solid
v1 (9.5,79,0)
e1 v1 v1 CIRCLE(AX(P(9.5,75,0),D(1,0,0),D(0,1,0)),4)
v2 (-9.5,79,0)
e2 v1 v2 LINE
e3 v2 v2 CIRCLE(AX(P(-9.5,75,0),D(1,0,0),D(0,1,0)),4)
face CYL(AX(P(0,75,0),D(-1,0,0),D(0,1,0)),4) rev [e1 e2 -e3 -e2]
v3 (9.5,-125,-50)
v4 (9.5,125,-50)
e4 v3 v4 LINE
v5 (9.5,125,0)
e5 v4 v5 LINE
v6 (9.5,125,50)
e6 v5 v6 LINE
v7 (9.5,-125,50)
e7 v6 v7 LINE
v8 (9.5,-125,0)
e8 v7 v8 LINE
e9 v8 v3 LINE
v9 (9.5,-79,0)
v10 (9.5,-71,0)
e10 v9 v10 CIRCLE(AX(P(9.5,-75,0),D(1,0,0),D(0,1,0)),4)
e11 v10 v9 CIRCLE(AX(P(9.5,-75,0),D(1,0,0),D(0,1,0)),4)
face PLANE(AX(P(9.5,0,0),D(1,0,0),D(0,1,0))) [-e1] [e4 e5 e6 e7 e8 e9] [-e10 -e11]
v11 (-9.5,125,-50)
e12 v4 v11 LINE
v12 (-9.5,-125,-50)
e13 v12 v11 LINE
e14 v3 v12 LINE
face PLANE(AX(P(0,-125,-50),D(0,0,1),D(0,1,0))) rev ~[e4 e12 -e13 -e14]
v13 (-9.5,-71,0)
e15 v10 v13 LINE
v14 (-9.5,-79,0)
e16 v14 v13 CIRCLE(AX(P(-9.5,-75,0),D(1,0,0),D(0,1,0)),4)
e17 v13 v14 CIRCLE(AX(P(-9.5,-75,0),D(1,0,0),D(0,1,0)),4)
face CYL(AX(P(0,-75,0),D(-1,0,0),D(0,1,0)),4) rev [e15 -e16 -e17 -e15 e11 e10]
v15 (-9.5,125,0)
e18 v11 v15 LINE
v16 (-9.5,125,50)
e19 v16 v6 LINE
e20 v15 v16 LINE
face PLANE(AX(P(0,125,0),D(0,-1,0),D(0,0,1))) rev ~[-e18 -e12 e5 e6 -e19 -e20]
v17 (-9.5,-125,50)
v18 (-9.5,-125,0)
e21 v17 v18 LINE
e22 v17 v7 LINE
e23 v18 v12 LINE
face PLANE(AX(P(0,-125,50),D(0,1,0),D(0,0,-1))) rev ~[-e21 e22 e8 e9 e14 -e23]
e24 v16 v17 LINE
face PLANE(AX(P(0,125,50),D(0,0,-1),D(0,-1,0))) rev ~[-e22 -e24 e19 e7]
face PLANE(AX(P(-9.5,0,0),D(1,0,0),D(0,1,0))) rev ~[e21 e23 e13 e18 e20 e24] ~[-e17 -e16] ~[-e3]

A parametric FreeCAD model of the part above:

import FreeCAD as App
import Part
import Sketcher

V = App.Vector
Q = App.Units.Quantity

doc = App.newDocument("Part")
body = doc.addObject("PartDesign::Body", "Body")

# Sketch on YZ plane
sketch1 = body.newObject("Sketcher::SketchObject", "Sketch")
sketch1.AttachmentSupport = (doc.getObject("YZ_Plane"), [""])
sketch1.MapMode = "FlatFace"
sketch1.addGeometry([
    Part.LineSegment(V(125, 0, 0), V(125, 50, 0)),  # 0
    Part.LineSegment(V(125, 50, 0), V(-125, 50, 0)),  # 1
    Part.LineSegment(V(-125, 50, 0), V(-125, 0, 0)),  # 2
    Part.LineSegment(V(-125, 0, 0), V(-125, -50, 0)),  # 3
    Part.LineSegment(V(-125, -50, 0), V(125, -50, 0)),  # 4
    Part.LineSegment(V(125, -50, 0), V(125, 0, 0)),  # 5
    Part.Circle(V(-75, 0, 0), V(0, 0, 1), 4),  # 6
    Part.Circle(V(75, 0, 0), V(0, 0, 1), 4),  # 7
], False)
sketch1.addConstraint([
    Sketcher.Constraint("Coincident", 0, 2, 1, 1),
    Sketcher.Constraint("Coincident", 1, 2, 2, 1),
    Sketcher.Constraint("Coincident", 2, 2, 3, 1),
    Sketcher.Constraint("Coincident", 3, 2, 4, 1),
    Sketcher.Constraint("Coincident", 4, 2, 5, 1),
    Sketcher.Constraint("Coincident", 5, 2, 0, 1),
    Sketcher.Constraint("Vertical", 0),
    Sketcher.Constraint("Horizontal", 1),
    Sketcher.Constraint("Vertical", 2),
    Sketcher.Constraint("Vertical", 3),
    Sketcher.Constraint("Horizontal", 4),
    Sketcher.Constraint("Vertical", 5),
    Sketcher.Constraint("Equal", 6, 7),
    Sketcher.Constraint("Symmetric", 6, 3, 7, 3, -1, 1),
    Sketcher.Constraint("Symmetric", 0, 2, 3, 2, -1, 1),
    Sketcher.Constraint("PointOnObject", 6, 3, -1),
    Sketcher.Constraint("PointOnObject", 2, 2, -1),
    Sketcher.Constraint("PointOnObject", 5, 2, -1),
    Sketcher.Constraint("Diameter", 6, Q("8 mm")),
    Sketcher.Constraint("DistanceX", 1, 2, 1, 1, Q("250 mm")),
    Sketcher.Constraint("DistanceY", 0, 1, 0, 2, Q("50 mm")),
    Sketcher.Constraint("DistanceX", 7, 3, 0, 2, Q("50 mm")),
])
pad1 = body.newObject("PartDesign::Pad", "Pad")
pad1.Profile = sketch1
pad1.Length = 19
pad1.Midplane = True

doc.recompute()
